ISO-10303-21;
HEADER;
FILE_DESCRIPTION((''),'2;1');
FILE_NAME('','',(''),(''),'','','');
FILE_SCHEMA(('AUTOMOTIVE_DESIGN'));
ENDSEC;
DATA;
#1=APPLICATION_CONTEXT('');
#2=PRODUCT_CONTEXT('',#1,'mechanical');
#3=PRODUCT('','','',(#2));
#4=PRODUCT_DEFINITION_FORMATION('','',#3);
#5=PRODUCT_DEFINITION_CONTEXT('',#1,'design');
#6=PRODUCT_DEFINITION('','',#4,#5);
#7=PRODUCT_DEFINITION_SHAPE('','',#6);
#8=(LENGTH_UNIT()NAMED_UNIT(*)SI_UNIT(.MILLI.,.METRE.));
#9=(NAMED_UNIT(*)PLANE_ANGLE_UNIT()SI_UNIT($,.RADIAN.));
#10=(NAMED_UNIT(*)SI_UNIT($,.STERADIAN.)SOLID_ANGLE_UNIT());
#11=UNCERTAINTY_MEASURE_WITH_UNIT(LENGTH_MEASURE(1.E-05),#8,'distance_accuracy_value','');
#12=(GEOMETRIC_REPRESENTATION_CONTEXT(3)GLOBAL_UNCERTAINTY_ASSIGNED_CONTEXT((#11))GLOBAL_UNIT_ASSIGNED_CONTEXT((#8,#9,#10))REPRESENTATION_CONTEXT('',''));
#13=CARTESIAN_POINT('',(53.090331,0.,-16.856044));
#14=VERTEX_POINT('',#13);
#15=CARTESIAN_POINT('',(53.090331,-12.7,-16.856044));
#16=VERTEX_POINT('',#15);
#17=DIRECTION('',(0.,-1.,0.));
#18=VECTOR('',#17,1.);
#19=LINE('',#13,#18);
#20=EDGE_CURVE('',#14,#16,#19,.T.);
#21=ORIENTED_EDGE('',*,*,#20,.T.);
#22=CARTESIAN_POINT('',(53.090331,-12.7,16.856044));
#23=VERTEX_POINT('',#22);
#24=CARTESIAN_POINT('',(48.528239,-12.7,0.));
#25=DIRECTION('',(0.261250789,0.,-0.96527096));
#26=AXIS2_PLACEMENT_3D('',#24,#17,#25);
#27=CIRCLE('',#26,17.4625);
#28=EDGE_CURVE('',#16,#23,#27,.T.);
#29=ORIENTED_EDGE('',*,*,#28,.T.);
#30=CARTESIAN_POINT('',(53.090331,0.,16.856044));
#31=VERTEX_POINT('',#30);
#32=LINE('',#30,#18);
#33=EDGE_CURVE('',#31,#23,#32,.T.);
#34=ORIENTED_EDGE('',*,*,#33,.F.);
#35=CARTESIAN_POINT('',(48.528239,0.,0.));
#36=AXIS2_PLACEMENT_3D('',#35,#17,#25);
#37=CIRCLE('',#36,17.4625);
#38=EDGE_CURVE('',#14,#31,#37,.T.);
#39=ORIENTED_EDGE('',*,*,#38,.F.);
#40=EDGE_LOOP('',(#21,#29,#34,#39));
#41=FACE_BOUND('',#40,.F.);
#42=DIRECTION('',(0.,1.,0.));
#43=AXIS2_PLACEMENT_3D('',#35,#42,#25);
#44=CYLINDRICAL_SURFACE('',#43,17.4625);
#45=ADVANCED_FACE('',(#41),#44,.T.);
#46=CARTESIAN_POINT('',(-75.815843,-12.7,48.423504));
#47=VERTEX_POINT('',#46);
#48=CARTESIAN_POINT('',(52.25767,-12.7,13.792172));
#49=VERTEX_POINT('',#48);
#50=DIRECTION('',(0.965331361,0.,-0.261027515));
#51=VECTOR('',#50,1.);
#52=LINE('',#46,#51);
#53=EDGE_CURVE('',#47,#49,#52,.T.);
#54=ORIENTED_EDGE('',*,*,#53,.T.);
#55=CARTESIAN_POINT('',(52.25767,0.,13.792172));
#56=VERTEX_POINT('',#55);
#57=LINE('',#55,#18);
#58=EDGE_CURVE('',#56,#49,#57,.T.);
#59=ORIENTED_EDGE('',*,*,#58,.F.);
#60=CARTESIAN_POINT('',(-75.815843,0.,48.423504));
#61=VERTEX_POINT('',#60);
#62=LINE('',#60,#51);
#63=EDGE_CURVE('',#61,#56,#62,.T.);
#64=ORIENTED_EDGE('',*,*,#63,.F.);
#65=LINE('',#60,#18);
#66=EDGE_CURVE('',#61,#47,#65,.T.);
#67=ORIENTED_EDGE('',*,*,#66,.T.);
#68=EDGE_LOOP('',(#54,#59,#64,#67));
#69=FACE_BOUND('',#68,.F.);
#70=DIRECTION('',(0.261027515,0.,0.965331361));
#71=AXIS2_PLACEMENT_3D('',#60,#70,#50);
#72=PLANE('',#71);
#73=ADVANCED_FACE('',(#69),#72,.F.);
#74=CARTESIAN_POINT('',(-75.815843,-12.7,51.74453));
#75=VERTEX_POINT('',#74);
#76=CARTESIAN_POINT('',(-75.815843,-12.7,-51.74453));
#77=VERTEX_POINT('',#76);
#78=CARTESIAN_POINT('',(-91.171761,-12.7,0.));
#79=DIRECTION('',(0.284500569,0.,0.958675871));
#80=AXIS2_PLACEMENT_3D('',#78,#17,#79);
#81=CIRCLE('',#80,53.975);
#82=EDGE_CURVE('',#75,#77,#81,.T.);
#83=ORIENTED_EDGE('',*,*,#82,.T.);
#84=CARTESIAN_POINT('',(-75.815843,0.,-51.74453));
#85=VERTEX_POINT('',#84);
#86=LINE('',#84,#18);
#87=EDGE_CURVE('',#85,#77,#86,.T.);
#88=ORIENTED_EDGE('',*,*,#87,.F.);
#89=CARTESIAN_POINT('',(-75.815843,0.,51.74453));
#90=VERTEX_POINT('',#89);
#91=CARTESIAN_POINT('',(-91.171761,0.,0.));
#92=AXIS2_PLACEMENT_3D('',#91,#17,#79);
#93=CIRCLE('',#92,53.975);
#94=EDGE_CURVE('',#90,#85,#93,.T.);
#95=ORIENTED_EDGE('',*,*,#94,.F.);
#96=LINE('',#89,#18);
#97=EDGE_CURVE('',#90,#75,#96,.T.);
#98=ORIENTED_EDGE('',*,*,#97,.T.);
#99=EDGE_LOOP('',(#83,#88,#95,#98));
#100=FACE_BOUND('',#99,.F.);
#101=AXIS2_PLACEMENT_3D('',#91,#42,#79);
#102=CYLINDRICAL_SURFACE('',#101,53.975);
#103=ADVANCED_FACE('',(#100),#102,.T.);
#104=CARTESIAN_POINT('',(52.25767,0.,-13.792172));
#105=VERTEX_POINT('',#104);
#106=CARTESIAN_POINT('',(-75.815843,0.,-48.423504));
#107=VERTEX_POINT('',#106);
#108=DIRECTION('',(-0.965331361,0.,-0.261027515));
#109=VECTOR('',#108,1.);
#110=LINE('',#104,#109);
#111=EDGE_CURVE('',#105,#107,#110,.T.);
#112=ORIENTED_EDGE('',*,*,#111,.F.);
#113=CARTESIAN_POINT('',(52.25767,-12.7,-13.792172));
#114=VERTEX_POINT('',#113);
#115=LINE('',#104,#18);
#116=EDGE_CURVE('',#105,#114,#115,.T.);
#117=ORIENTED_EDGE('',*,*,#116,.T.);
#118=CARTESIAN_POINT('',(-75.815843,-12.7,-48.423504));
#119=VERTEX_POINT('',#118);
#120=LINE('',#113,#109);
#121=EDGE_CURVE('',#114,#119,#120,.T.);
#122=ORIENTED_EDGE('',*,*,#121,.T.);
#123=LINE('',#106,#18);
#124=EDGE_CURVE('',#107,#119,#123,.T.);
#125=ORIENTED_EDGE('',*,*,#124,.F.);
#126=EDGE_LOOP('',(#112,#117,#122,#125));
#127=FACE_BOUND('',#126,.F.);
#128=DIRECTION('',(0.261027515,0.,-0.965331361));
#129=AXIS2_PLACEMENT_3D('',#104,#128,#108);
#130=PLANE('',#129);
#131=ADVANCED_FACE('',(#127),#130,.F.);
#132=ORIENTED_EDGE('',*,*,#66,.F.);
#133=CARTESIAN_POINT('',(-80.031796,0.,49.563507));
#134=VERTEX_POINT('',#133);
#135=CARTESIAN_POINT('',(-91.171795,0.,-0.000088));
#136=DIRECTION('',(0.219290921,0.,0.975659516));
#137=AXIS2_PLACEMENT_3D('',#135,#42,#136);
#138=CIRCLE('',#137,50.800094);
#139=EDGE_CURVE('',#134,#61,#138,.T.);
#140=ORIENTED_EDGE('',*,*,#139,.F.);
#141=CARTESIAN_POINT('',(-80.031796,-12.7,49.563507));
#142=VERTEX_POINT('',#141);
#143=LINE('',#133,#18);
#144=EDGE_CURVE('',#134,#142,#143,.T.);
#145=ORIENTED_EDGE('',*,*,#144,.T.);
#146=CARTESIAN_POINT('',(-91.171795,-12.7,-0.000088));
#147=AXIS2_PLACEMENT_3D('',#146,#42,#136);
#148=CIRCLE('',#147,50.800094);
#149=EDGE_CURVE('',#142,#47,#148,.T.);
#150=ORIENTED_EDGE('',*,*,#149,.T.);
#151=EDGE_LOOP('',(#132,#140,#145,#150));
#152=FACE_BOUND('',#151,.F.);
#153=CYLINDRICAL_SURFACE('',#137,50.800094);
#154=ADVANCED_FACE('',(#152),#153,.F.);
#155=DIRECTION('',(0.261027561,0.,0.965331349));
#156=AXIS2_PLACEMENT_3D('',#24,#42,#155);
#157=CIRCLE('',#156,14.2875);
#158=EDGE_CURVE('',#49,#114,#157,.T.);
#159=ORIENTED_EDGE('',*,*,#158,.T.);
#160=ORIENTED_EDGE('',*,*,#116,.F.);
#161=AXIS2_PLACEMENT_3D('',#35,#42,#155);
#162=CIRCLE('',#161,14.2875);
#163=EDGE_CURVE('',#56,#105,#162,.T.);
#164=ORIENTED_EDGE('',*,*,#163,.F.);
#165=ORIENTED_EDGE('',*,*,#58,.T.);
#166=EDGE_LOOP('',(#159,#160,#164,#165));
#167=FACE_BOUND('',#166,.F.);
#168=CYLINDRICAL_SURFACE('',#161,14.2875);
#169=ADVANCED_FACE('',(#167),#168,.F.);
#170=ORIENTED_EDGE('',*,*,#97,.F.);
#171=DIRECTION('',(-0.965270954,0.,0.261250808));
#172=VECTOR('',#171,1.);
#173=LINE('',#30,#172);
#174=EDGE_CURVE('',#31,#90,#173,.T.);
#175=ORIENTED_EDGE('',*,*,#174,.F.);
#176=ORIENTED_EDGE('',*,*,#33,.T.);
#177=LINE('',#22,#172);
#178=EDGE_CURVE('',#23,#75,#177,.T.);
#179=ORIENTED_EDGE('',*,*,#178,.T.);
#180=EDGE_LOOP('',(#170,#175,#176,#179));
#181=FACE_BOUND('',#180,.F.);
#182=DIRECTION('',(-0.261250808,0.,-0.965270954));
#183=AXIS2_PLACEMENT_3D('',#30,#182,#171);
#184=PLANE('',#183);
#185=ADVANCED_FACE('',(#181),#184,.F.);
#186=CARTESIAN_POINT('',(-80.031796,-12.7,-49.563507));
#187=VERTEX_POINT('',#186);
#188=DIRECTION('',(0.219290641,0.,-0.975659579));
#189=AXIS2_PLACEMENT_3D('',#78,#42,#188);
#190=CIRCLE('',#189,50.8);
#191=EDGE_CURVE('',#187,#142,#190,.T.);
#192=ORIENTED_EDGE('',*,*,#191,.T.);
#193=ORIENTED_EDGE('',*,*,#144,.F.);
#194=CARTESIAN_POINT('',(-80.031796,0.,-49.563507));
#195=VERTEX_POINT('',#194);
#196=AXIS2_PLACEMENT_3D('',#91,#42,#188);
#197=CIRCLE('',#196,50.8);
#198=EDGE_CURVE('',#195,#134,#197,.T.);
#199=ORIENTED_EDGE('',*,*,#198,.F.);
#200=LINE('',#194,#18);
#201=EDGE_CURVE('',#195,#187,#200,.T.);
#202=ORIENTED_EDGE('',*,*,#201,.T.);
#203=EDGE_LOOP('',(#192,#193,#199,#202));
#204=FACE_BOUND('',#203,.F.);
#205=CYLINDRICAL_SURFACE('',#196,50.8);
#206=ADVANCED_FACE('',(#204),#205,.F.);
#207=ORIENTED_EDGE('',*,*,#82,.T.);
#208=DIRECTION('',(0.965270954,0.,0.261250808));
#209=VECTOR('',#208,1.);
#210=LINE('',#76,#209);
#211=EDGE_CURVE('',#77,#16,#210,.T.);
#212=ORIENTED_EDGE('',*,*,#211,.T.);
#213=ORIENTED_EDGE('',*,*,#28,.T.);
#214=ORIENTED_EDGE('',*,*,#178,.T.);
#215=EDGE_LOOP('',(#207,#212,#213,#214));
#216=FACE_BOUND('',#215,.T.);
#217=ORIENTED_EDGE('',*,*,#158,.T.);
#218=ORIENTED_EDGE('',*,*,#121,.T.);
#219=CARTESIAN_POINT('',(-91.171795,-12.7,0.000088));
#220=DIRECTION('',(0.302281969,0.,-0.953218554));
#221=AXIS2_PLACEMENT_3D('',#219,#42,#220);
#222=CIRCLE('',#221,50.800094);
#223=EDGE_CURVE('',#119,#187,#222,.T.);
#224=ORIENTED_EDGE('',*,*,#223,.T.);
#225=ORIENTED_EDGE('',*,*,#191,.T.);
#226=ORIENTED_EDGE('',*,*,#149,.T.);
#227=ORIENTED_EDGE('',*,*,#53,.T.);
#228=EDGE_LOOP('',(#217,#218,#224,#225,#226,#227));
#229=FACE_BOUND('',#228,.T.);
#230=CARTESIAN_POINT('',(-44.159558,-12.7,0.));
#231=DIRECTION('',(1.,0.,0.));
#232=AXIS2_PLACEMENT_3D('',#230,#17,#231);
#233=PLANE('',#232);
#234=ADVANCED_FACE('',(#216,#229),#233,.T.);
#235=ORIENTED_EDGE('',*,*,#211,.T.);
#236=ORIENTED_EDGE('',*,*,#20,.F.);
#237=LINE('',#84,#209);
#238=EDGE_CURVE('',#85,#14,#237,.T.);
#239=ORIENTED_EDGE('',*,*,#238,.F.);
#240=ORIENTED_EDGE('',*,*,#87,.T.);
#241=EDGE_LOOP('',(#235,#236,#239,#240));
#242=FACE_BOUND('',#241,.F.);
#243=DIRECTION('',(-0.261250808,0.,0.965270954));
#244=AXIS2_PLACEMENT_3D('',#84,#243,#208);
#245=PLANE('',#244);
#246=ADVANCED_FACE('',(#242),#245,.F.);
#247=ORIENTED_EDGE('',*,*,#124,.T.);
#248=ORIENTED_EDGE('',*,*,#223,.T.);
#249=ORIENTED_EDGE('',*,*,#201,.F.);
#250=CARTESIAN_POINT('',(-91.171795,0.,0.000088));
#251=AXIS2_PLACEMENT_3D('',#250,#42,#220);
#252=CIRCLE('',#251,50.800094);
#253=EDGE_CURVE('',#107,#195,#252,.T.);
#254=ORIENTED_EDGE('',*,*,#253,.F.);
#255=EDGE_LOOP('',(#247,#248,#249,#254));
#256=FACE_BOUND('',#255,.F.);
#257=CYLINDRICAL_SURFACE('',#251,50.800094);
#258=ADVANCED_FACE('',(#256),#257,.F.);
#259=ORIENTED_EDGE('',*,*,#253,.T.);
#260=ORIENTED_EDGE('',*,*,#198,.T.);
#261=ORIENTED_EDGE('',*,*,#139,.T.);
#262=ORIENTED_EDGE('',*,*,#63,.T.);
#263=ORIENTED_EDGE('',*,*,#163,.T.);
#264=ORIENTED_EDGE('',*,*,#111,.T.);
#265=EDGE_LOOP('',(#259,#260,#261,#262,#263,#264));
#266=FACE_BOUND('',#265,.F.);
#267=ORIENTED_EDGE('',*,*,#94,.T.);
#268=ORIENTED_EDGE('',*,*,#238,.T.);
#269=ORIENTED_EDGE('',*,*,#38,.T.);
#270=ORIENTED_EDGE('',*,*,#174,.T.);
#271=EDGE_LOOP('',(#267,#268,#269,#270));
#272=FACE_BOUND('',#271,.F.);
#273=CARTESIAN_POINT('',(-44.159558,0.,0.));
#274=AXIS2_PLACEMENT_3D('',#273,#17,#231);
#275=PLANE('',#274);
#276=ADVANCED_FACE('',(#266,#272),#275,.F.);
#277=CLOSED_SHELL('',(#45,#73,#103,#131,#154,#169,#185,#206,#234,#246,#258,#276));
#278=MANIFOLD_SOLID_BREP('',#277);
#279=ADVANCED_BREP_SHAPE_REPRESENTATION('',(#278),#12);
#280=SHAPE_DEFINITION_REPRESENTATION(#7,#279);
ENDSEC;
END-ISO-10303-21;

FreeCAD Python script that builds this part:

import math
import FreeCAD as App
import Part
import Sketcher

V = App.Vector
Q = App.Units.Quantity

doc = App.newDocument("Part")
body = doc.addObject("PartDesign::Body", "Body")

# Sketch on XZ plane
sketch1 = body.newObject("Sketcher::SketchObject", "Sketch")
sketch1.AttachmentSupport = (doc.getObject("XZ_Plane"), [""])
sketch1.MapMode = "FlatFace"
sketch1.addGeometry([
    Part.LineSegment(V(53.1, 16.9, 0), V(-75.8, 51.7, 0)),  # 0
    Part.ArcOfCircle(Part.Circle(V(-91.2, 0, 0), V(0, 0, 1), 54), math.radians(73), math.radians(287)),  # 1
    Part.LineSegment(V(-75.8, -51.7, 0), V(53.1, -16.9, 0)),  # 2
    Part.ArcOfCircle(Part.Circle(V(48.5, 0, 0), V(0, 0, 1), 17.5), math.radians(-75), math.radians(75)),  # 3
    Part.ArcOfCircle(Part.Circle(V(-91.2, 0, 0), V(0, 0, 1), 50.8), math.radians(77), math.radians(283)),  # 4
    Part.ArcOfCircle(Part.Circle(V(-91.2, 0, 0), V(0, 0, 1), 50.8), math.radians(72.41), math.radians(77.33)),  # 5
    Part.LineSegment(V(-75.8, 48.4, 0), V(52.3, 13.8, 0)),  # 6
    Part.ArcOfCircle(Part.Circle(V(48.5, 0, 0), V(0, 0, 1), 14.3), math.radians(-75), math.radians(75)),  # 7
    Part.LineSegment(V(52.3, -13.8, 0), V(-75.8, -48.4, 0)),  # 8
    Part.ArcOfCircle(Part.Circle(V(-91.2, 0, 0), V(0, 0, 1), 50.8), math.radians(-77.33), math.radians(-72.41)),  # 9
], False)
sketch1.addConstraint([
    Sketcher.Constraint("Coincident", 0, 2, 1, 1),
    Sketcher.Constraint("Coincident", 1, 2, 2, 1),
    Sketcher.Constraint("Tangent", 2, 2, 3, 1),
    Sketcher.Constraint("Tangent", 3, 2, 0, 1),
    Sketcher.Constraint("Tangent", 4, 1, 5, 2),
    Sketcher.Constraint("Coincident", 5, 1, 6, 1),
    Sketcher.Constraint("Tangent", 6, 2, 7, 2),
    Sketcher.Constraint("Tangent", 7, 1, 8, 1),
    Sketcher.Constraint("Coincident", 8, 2, 9, 2),
    Sketcher.Constraint("Tangent", 9, 1, 4, 2),
    Sketcher.Constraint("Coincident", 4, 3, 1, 3),
    Sketcher.Constraint("Coincident", 7, 3, 3, 3),
    Sketcher.Constraint("Equal", 5, 9),
    Sketcher.Constraint("Symmetric", 0, 2, 1, 2, -1),
    Sketcher.Constraint("Symmetric", 6, 2, 7, 1, -1),
    Sketcher.Constraint("Vertical", 1, 2, 5, 1),
    Sketcher.Constraint("Vertical", 4, 1, 9, 1),
    Sketcher.Constraint("Radius", 4, Q("2 in")),
    Sketcher.Constraint("Radius", 1, Q("2.125 in")),
    Sketcher.Constraint("Radius", 3, Q("0.6875 in")),
    Sketcher.Constraint("Radius", 7, Q("0.5625 in")),
    Sketcher.Constraint("DistanceX", 1, 3, 3, 3, Q("5.5 in")),
    Sketcher.Constraint("Radius", 5, Q("50.800094 mm")),
    Sketcher.Constraint("DistanceX", 9, 3, 4, 1, Q("11.139999 mm")),
    Sketcher.Constraint("Distance", 0, Q("133.544031 mm")),
    Sketcher.Constraint("DistanceX", 1, 3, -1, 1, Q("91.171761 mm")),
])
pad1 = body.newObject("PartDesign::Pad", "Pad")
pad1.Profile = sketch1
pad1.Length = Q("0.5 in")

doc.recompute()
